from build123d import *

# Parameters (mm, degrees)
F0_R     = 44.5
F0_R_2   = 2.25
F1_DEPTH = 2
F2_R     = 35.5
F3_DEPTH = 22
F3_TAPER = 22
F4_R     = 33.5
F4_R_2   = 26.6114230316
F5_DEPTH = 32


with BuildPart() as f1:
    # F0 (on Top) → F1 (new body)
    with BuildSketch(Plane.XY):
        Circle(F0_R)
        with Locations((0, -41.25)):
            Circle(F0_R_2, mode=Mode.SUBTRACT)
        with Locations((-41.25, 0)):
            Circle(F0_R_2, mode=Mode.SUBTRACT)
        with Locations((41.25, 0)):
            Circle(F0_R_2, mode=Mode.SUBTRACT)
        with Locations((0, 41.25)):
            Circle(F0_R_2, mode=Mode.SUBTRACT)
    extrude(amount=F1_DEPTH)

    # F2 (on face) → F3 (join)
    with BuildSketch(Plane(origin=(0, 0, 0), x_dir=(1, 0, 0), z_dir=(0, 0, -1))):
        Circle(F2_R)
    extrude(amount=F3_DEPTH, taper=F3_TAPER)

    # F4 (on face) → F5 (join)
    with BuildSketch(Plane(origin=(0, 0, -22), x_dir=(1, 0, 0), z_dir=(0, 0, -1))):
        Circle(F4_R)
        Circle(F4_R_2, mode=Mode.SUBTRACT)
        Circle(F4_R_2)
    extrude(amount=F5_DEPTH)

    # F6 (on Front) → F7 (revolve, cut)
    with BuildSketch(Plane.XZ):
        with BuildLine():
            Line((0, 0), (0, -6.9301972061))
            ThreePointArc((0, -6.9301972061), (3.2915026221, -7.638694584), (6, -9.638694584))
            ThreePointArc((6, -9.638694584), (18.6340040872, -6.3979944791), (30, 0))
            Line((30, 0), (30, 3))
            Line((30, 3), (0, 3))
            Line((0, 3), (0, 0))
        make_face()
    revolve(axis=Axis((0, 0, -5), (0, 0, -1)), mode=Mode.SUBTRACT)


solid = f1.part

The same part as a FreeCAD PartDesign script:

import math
import FreeCAD as App
import Part
import Sketcher

doc = App.newDocument("Part")
body = doc.addObject("PartDesign::Body", "Body")

# Sketch on XY plane
sketch1 = body.newObject("Sketcher::SketchObject", "Sketch")
sketch1.AttachmentSupport = (doc.getObject("XY_Plane"), [""])
sketch1.MapMode = "FlatFace"
sketch1.addGeometry(Part.Circle(App.Vector(0, 0, 0), App.Vector(0, 0, 1), 44.5), False)
sketch1.addGeometry(Part.Circle(App.Vector(0, -41.25, 0), App.Vector(0, 0, 1), 2.25), False)
sketch1.addGeometry(Part.Circle(App.Vector(-41.25, 0, 0), App.Vector(0, 0, 1), 2.25), False)
sketch1.addGeometry(Part.Circle(App.Vector(41.25, 0, 0), App.Vector(0, 0, 1), 2.25), False)
sketch1.addGeometry(Part.Circle(App.Vector(0, 41.25, 0), App.Vector(0, 0, 1), 2.25), False)
sketch1.addConstraint(Sketcher.Constraint("Coincident", 0, 3, -1, 1))
sketch1.addConstraint(Sketcher.Constraint("Equal", 1, 2))
sketch1.addConstraint(Sketcher.Constraint("Equal", 2, 3))
sketch1.addConstraint(Sketcher.Constraint("Equal", 3, 4))
sketch1.addConstraint(Sketcher.Constraint("Symmetric", 2, 3, 3, 3, -1, 1))
sketch1.addConstraint(Sketcher.Constraint("Symmetric", 1, 3, 4, 3, -1, 1))
sketch1.addConstraint(Sketcher.Constraint("PointOnObject", 1, 3, -2))
sketch1.addConstraint(Sketcher.Constraint("PointOnObject", 2, 3, -1))
sketch1.addConstraint(Sketcher.Constraint("Diameter", 0, 89.0))
sketch1.addConstraint(Sketcher.Constraint("Diameter", 1, 4.5))
sketch1.addConstraint(Sketcher.Constraint("DistanceX", 2, 3, 3, 3, 82.5))
sketch1.addConstraint(Sketcher.Constraint("DistanceY", 1, 3, 4, 3, 82.5))
pad1 = body.newObject("PartDesign::Pad", "Pad")
pad1.Profile = sketch1
pad1.Length = 2

# Sketch on XY plane
sketch2 = body.newObject("Sketcher::SketchObject", "Sketch001")
sketch2.AttachmentSupport = (doc.getObject("XY_Plane"), [""])
sketch2.MapMode = "FlatFace"
sketch2.addGeometry(Part.Circle(App.Vector(0, 0, 0), App.Vector(0, 0, 1), 35.5), False)
sketch2.addConstraint(Sketcher.Constraint("Coincident", 0, 3, -1, 1))
sketch2.addConstraint(Sketcher.Constraint("Diameter", 0, 71.0))
pad2 = body.newObject("PartDesign::Pad", "Pad001")
pad2.Profile = sketch2
pad2.Length = 22
pad2.Reversed = True
pad2.TaperAngle = -22

# Sketch on XY plane
sketch3 = body.newObject("Sketcher::SketchObject", "Sketch002")
sketch3.AttachmentSupport = (doc.getObject("XY_Plane"), [""])
sketch3.MapMode = "FlatFace"
sketch3.AttachmentOffset = App.Placement(App.Vector(0, 0, -22), App.Rotation())
sketch3.addGeometry(Part.Circle(App.Vector(0, 0, 0), App.Vector(0, 0, 1), 33.5), False)
sketch3.addConstraint(Sketcher.Constraint("Coincident", 0, 3, -1, 1))
sketch3.addConstraint(Sketcher.Constraint("Diameter", 0, 67.0))
pad3 = body.newObject("PartDesign::Pad", "Pad002")
pad3.Profile = sketch3
pad3.Length = 32
pad3.Reversed = True

# Sketch on XZ plane
sketch4 = body.newObject("Sketcher::SketchObject", "Sketch003")
sketch4.AttachmentSupport = (doc.getObject("XZ_Plane"), [""])
sketch4.MapMode = "FlatFace"
sketch4.addGeometry(Part.ArcOfCircle(Part.Circle(App.Vector(0, -14.930197, 0), App.Vector(0, 0, 1), 8), math.radians(41.409622), math.radians(90)), False)
sketch4.addGeometry(Part.ArcOfCircle(Part.Circle(App.Vector(0, 40, 0), App.Vector(0, 0, 1), 50), math.radians(-83.107897), math.radians(-53.130102)), False)
sketch4.addGeometry(Part.LineSegment(App.Vector(30, 0, 0), App.Vector(30, 3, 0)), False)
sketch4.addGeometry(Part.LineSegment(App.Vector(30, 3, 0), App.Vector(0, 3, 0)), False)
sketch4.addGeometry(Part.LineSegment(App.Vector(0, 3, 0), App.Vector(0, -6.930197, 0)), False)
sketch4.addConstraint(Sketcher.Constraint("Coincident", 0, 1, 1, 1))
sketch4.addConstraint(Sketcher.Constraint("Coincident", 1, 2, 2, 1))
sketch4.addConstraint(Sketcher.Constraint("Coincident", 2, 2, 3, 1))
sketch4.addConstraint(Sketcher.Constraint("Coincident", 3, 2, 4, 1))
sketch4.addConstraint(Sketcher.Constraint("Coincident", 4, 2, 0, 2))
sketch4.addConstraint(Sketcher.Constraint("Vertical", 2))
sketch4.addConstraint(Sketcher.Constraint("Horizontal", 3))
sketch4.addConstraint(Sketcher.Constraint("Vertical", 4))
sketch4.addConstraint(Sketcher.Constraint("PointOnObject", 0, 3, -2))
sketch4.addConstraint(Sketcher.Constraint("PointOnObject", 1, 3, -2))
sketch4.addConstraint(Sketcher.Constraint("PointOnObject", 1, 2, -1))
sketch4.addConstraint(Sketcher.Constraint("PointOnObject", 3, 2, -2))
sketch4.addConstraint(Sketcher.Constraint("Radius", 0, 8.0))
sketch4.addConstraint(Sketcher.Constraint("Radius", 1, 50.0))
sketch4.addConstraint(Sketcher.Constraint("DistanceX", 3, 2, 3, 1, 30.0))
sketch4.addConstraint(Sketcher.Constraint("DistanceY", 2, 1, 2, 2, 3.0))
sketch4.addConstraint(Sketcher.Constraint("DistanceX", -1, 1, 0, 1, 6.0))
groove = body.newObject("PartDesign::Groove", "Groove")
groove.Profile = sketch4
groove.ReferenceAxis = (sketch4, ["V_Axis"])
groove.Angle = 360

doc.recompute()
